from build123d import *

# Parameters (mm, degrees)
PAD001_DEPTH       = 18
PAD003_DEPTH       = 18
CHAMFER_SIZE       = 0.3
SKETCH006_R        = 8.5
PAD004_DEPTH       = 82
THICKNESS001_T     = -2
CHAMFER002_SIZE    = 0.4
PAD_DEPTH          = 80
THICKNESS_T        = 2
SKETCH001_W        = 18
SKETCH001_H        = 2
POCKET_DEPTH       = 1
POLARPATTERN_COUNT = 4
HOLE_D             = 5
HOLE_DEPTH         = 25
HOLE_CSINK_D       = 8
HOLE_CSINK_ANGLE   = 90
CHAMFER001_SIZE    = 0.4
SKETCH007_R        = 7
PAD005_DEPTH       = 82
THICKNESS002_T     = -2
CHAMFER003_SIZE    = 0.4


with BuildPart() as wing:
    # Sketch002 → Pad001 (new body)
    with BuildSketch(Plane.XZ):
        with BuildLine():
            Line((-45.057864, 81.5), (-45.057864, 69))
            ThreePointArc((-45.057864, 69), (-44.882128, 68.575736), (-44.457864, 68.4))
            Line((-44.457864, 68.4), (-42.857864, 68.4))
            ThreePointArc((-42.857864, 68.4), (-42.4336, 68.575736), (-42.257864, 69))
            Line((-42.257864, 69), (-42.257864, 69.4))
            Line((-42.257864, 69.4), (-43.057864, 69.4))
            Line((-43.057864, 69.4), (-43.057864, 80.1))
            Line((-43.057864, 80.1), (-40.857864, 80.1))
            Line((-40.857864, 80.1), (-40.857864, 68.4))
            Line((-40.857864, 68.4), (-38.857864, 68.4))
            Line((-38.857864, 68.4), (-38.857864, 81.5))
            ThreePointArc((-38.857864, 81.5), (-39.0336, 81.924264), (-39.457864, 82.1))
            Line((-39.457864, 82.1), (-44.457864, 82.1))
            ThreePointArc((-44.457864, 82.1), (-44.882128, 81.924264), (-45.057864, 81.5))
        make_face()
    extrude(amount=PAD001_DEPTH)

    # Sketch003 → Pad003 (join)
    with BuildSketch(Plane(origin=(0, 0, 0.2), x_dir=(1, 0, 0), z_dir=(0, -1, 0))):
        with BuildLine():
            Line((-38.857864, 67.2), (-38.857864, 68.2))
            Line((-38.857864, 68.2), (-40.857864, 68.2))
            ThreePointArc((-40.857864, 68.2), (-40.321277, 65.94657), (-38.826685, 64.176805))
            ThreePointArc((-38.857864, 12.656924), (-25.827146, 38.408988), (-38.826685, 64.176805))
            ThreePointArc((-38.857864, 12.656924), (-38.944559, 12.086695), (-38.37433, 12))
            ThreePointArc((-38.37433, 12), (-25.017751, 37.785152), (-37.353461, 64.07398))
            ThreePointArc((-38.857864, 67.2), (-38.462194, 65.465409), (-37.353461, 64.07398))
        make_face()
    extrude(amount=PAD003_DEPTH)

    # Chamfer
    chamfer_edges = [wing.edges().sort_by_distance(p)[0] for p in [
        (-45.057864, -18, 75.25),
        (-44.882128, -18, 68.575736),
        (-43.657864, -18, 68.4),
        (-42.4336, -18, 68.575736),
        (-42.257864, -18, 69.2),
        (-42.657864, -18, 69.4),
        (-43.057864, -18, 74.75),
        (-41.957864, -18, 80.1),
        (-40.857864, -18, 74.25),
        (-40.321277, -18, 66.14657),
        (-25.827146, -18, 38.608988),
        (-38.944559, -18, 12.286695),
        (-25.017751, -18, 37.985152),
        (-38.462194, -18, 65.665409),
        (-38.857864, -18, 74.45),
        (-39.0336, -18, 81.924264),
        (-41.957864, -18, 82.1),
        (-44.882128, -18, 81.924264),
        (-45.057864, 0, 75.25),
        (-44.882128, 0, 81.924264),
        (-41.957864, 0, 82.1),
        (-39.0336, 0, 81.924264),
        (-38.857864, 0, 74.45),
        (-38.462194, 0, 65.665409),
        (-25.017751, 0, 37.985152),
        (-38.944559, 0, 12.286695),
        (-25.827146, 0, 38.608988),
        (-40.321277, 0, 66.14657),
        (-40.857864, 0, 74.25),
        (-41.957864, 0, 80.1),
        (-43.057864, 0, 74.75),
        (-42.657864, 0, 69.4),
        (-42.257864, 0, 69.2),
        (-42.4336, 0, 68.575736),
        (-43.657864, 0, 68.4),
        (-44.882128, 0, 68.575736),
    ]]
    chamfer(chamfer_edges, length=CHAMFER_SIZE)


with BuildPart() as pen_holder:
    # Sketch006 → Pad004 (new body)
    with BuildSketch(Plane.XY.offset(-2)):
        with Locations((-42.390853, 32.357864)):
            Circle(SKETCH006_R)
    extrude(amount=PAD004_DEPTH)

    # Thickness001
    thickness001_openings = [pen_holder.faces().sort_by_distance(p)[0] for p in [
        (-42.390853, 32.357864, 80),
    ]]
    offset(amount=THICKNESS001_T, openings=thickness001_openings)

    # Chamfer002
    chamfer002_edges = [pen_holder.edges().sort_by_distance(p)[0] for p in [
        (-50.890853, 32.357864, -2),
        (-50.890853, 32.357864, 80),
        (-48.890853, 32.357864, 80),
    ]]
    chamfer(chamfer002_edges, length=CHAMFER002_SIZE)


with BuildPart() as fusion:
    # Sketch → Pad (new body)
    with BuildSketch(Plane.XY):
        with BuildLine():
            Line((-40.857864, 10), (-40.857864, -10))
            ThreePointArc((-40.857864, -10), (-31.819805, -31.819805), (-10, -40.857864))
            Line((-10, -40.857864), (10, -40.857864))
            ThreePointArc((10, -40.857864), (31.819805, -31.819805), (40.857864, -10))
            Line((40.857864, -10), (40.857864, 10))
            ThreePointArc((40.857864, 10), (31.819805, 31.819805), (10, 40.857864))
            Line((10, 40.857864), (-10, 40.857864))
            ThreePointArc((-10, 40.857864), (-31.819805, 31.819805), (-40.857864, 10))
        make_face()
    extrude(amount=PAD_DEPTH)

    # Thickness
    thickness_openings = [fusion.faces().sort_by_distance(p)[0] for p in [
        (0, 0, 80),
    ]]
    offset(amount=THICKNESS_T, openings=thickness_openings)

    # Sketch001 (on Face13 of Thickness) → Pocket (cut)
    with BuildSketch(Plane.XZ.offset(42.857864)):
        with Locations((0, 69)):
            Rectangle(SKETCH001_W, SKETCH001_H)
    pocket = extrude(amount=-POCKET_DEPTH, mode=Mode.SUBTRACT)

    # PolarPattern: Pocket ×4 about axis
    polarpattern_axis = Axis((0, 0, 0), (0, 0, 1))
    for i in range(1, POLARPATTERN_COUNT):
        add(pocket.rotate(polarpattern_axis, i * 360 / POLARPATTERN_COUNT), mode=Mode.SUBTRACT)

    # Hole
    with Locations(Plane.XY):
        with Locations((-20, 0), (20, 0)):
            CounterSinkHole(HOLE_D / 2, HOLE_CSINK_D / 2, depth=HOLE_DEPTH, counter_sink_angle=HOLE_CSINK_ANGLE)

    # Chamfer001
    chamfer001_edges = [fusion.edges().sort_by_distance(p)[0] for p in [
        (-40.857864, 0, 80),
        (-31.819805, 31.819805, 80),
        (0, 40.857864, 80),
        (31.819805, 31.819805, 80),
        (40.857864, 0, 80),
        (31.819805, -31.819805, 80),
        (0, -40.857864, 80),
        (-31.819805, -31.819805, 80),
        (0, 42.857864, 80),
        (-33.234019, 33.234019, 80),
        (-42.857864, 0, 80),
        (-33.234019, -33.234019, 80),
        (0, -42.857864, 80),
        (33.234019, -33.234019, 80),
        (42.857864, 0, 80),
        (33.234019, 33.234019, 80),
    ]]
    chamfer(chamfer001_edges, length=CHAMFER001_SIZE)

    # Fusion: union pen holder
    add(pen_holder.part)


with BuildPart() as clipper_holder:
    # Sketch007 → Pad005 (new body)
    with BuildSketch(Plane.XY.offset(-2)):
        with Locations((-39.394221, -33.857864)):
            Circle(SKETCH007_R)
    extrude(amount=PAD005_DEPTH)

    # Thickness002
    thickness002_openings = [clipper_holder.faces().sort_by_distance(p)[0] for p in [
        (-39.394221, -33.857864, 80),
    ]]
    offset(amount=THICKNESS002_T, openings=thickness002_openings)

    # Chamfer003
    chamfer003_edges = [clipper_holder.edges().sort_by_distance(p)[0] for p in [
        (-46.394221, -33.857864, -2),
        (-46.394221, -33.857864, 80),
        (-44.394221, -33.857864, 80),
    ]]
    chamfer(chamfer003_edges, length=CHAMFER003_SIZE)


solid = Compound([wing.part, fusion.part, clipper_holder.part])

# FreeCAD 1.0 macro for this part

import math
import FreeCAD as App
import Part
import Sketcher

V = App.Vector


def edges_at(feature, points):
    """Names of the edges that pass closest to the given points."""
    edges = feature.Shape.Edges
    near = lambda p: min(range(len(edges)), key=lambda i: edges[i].distToShape(Part.Vertex(*p))[0])
    return sorted({f"Edge{near(p) + 1}" for p in points})


def faces_at(feature, points):
    """Names of the faces that lie closest to the given points."""
    faces = feature.Shape.Faces
    near = lambda p: min(range(len(faces)), key=lambda i: faces[i].distToShape(Part.Vertex(*p))[0])
    return sorted({f"Face{near(p) + 1}" for p in points})


def add_polygon(sketch, points):
    """Adds a closed chain of lines whose ends are joined by coincident constraints."""
    first, n = sketch.GeometryCount, len(points)
    for a, b in zip(points, points[1:] + points[:1]):
        sketch.addGeometry(Part.LineSegment(App.Vector(*a, 0), App.Vector(*b, 0)), False)
    for i in range(n):
        sketch.addConstraint(Sketcher.Constraint("Coincident", first + i, 2, first + (i + 1) % n, 1))

doc = App.newDocument("Part")
body = doc.addObject("PartDesign::Body", "Body")

# Sketch on XZ plane
sketch1 = doc.addObject("Sketcher::SketchObject", "Sketch")
body.addObject(sketch1)
sketch1.AttachmentSupport = (doc.XZ_Plane, [""])
sketch1.MapMode = "FlatFace"
sketch1.addGeometry([
    Part.LineSegment(V(-45.06, 81.5, 0), V(-45.06, 69, 0)),  # 0
    Part.ArcOfCircle(Part.Circle(V(-44.46, 69, 0), V(0, 0, 1), 0.6), math.radians(-180), math.radians(-90)),  # 1
    Part.LineSegment(V(-44.46, 68.4, 0), V(-42.86, 68.4, 0)),  # 2
    Part.ArcOfCircle(Part.Circle(V(-42.86, 69, 0), V(0, 0, 1), 0.6), math.radians(-90), math.radians(0)),  # 3
    Part.LineSegment(V(-42.26, 69, 0), V(-42.26, 69.4, 0)),  # 4
    Part.LineSegment(V(-42.26, 69.4, 0), V(-43.06, 69.4, 0)),  # 5
    Part.LineSegment(V(-43.06, 69.4, 0), V(-43.06, 80.1, 0)),  # 6
    Part.LineSegment(V(-43.06, 80.1, 0), V(-40.86, 80.1, 0)),  # 7
    Part.LineSegment(V(-40.86, 80.1, 0), V(-40.86, 68.4, 0)),  # 8
    Part.LineSegment(V(-40.86, 68.4, 0), V(-38.86, 68.4, 0)),  # 9
    Part.LineSegment(V(-38.86, 68.4, 0), V(-38.86, 81.5, 0)),  # 10
    Part.ArcOfCircle(Part.Circle(V(-39.46, 81.5, 0), V(0, 0, 1), 0.6), math.radians(0), math.radians(90)),  # 11
    Part.LineSegment(V(-39.46, 82.1, 0), V(-44.46, 82.1, 0)),  # 12
    Part.ArcOfCircle(Part.Circle(V(-44.46, 81.5, 0), V(0, 0, 1), 0.6), math.radians(90), math.radians(180)),  # 13
], False)
sketch1.addConstraint([
    Sketcher.Constraint("Tangent", 0, 2, 1, 1),
    Sketcher.Constraint("Tangent", 1, 2, 2, 1),
    Sketcher.Constraint("Tangent", 2, 2, 3, 1),
    Sketcher.Constraint("Tangent", 3, 2, 4, 1),
    Sketcher.Constraint("Coincident", 4, 2, 5, 1),
    Sketcher.Constraint("Coincident", 5, 2, 6, 1),
    Sketcher.Constraint("Coincident", 6, 2, 7, 1),
    Sketcher.Constraint("Coincident", 7, 2, 8, 1),
    Sketcher.Constraint("Coincident", 8, 2, 9, 1),
    Sketcher.Constraint("Coincident", 9, 2, 10, 1),
    Sketcher.Constraint("Tangent", 10, 2, 11, 1),
    Sketcher.Constraint("Tangent", 11, 2, 12, 1),
    Sketcher.Constraint("Tangent", 12, 2, 13, 1),
    Sketcher.Constraint("Tangent", 13, 2, 0, 1),
    Sketcher.Constraint("Vertical", 0),
    Sketcher.Constraint("Horizontal", 2),
    Sketcher.Constraint("Vertical", 4),
    Sketcher.Constraint("Horizontal", 5),
    Sketcher.Constraint("Vertical", 6),
    Sketcher.Constraint("Horizontal", 7),
    Sketcher.Constraint("Vertical", 8),
    Sketcher.Constraint("Horizontal", 9),
    Sketcher.Constraint("Vertical", 10),
    Sketcher.Constraint("Horizontal", 12),
    Sketcher.Constraint("Equal", 1, 3),
    Sketcher.Constraint("Equal", 3, 11),
    Sketcher.Constraint("Equal", 11, 13),
    Sketcher.Constraint("Horizontal", 2, 2, 8, 2),
    Sketcher.Constraint("Radius", 1, 0.6),
    Sketcher.Constraint("DistanceX", 9, 1, 9, 2, 2.0),
    Sketcher.Constraint("DistanceX", 12, 2, 12, 1, 5.0),
    Sketcher.Constraint("DistanceX", 2, 1, 2, 2, 1.6),
    Sketcher.Constraint("DistanceX", 5, 2, 5, 1, 0.8),
    Sketcher.Constraint("DistanceY", 0, 2, 0, 1, 12.5),
    Sketcher.Constraint("DistanceY", 4, 1, 4, 2, 0.4),
    Sketcher.Constraint("DistanceY", 6, 1, 6, 2, 10.7),
    Sketcher.Constraint("DistanceY", -1, 1, 1, 3, 69.0),
    Sketcher.Constraint("DistanceX", 1, 3, -1, 1, 44.457864),
])
pad1 = doc.addObject("PartDesign::Pad", "Pad")
body.addObject(pad1)
pad1.Profile = sketch1
pad1.Length = 18

# Sketch on XZ plane
sketch2 = doc.addObject("Sketcher::SketchObject", "Sketch001")
body.addObject(sketch2)
sketch2.AttachmentSupport = (doc.XZ_Plane, [""])
sketch2.MapMode = "FlatFace"
sketch2.addGeometry([
    Part.LineSegment(V(-38.86, 67.4, 0), V(-38.86, 68.4, 0)),  # 0
    Part.LineSegment(V(-38.86, 68.4, 0), V(-40.86, 68.4, 0)),  # 1
    Part.ArcOfCircle(Part.Circle(V(-35.86, 68.4, 0), V(0, 0, 1), 5), math.radians(180), math.radians(234)),  # 2
    Part.ArcOfCircle(Part.Circle(V(-57.83, 38.63, 0), V(0, 0, 1), 32), math.radians(-54), math.radians(54)),  # 3
    Part.ArcOfCircle(Part.Circle(V(-38.62, 12.53, 0), V(0, 0, 1), 0.41), math.radians(126), math.radians(306)),  # 4
    Part.ArcOfCircle(Part.Circle(V(-57.83, 38.63, 0), V(0, 0, 1), 32.82), math.radians(-54), math.radians(51)),  # 5
    Part.ArcOfCircle(Part.Circle(V(-34.86, 67.4, 0), V(0, 0, 1), 4), math.radians(-180), math.radians(-129)),  # 6
], False)
sketch2.addConstraint([
    Sketcher.Constraint("Coincident", 0, 2, 1, 1),
    Sketcher.Constraint("Coincident", 1, 2, 2, 1),
    Sketcher.Constraint("Tangent", 2, 2, 3, 2),
    Sketcher.Constraint("Tangent", 3, 1, 4, 1),
    Sketcher.Constraint("Tangent", 4, 2, 5, 1),
    Sketcher.Constraint("Tangent", 5, 2, 6, 2),
    Sketcher.Constraint("Tangent", 6, 1, 0, 1),
    Sketcher.Constraint("Vertical", 0),
    Sketcher.Constraint("Horizontal", 1),
    Sketcher.Constraint("Coincident", 5, 3, 3, 3),
    Sketcher.Constraint("Horizontal", 2, 3, 0, 2),
    Sketcher.Constraint("Vertical", 0, 2, 3, 1),
    Sketcher.Constraint("Radius", 3, 32.000001),
    Sketcher.Constraint("DistanceX", 1, 2, 1, 1, 2.0),
    Sketcher.Constraint("DistanceY", 0, 1, 0, 2, 1.0),
    Sketcher.Constraint("DistanceY", -1, 1, 2, 3, 68.399999),
    Sketcher.Constraint("DistanceY", -1, 1, 4, 2, 12.2),
    Sketcher.Constraint("Radius", 2, 4.999996),
    Sketcher.Constraint("Radius", 4, 0.407846),
    Sketcher.Constraint("DistanceX", 3, 3, -1, 1, 57.827141),
])
pad2 = doc.addObject("PartDesign::Pad", "Pad001")
body.addObject(pad2)
pad2.Profile = sketch2
pad2.Length = 18
doc.recompute()

chamfer = doc.addObject("PartDesign::Chamfer", "Chamfer")
body.addObject(chamfer)
chamfer.Base = (pad2, edges_at(pad2, [
    (-45.058, -18, 75.25),
    (-44.882, -18, 68.576),
    (-43.658, -18, 68.4),
    (-42.434, -18, 68.576),
    (-42.258, -18, 69.2),
    (-42.658, -18, 69.4),
    (-43.058, -18, 74.75),
    (-41.958, -18, 80.1),
    (-40.858, -18, 74.25),
    (-40.321, -18, 66.147),
    (-25.827, -18, 38.609),
    (-38.945, -18, 12.287),
    (-25.018, -18, 37.985),
    (-38.462, -18, 65.665),
    (-38.858, -18, 74.45),
    (-39.034, -18, 81.924),
    (-41.958, -18, 82.1),
    (-44.882, -18, 81.924),
    (-45.058, 0, 75.25),
    (-44.882, 0, 81.924),
    (-41.958, 0, 82.1),
    (-39.034, 0, 81.924),
    (-38.858, 0, 74.45),
    (-38.462, 0, 65.665),
    (-25.018, 0, 37.985),
    (-38.945, 0, 12.287),
    (-25.827, 0, 38.609),
    (-40.321, 0, 66.147),
    (-40.858, 0, 74.25),
    (-41.958, 0, 80.1),
    (-43.058, 0, 74.75),
    (-42.658, 0, 69.4),
    (-42.258, 0, 69.2),
    (-42.434, 0, 68.576),
    (-43.658, 0, 68.4),
    (-44.882, 0, 68.576),
]))
chamfer.Size = 0.3
body2 = doc.addObject("PartDesign::Body", "Body001")

# Sketch on XY plane
sketch3 = doc.addObject("Sketcher::SketchObject", "Sketch002")
body2.addObject(sketch3)
sketch3.AttachmentSupport = (doc.getObject("XY_Plane001"), [""])
sketch3.MapMode = "FlatFace"
sketch3.AttachmentOffset = App.Placement(V(0, 0, -2), App.Rotation())
sketch3.addGeometry(Part.Circle(V(-42, 32, 0), V(0, 0, 1), 8), False)
sketch3.addConstraint([
    Sketcher.Constraint("Diameter", 0, 17.0),
    Sketcher.Constraint("DistanceX", 0, 3, -1, 1, 42.390853),
    Sketcher.Constraint("DistanceY", -1, 1, 0, 3, 32.357864),
])
pad3 = doc.addObject("PartDesign::Pad", "Pad002")
body2.addObject(pad3)
pad3.Profile = sketch3
pad3.Length = 82
doc.recompute()

thickness = doc.addObject("PartDesign::Thickness", "Thickness")
body2.addObject(thickness)
thickness.Base = (pad3, faces_at(pad3, [(-42.391, 32.358, 80)]))
thickness.Value = 2
thickness.Reversed = True
thickness.Join = "Arc"
doc.recompute()

chamfer2 = doc.addObject("PartDesign::Chamfer", "Chamfer001")
body2.addObject(chamfer2)
chamfer2.Base = (thickness, edges_at(thickness, [(-50.891, 32.358, -2), (-50.891, 32.358, 80), (-48.891, 32.358, 80)]))
chamfer2.Size = 0.4
body3 = doc.addObject("PartDesign::Body", "Body002")

# Sketch on XY plane
sketch4 = doc.addObject("Sketcher::SketchObject", "Sketch003")
body3.addObject(sketch4)
sketch4.AttachmentSupport = (doc.getObject("XY_Plane002"), [""])
sketch4.MapMode = "FlatFace"
sketch4.addGeometry([
    Part.LineSegment(V(-41, 10, 0), V(-41, -10, 0)),  # 0
    Part.ArcOfCircle(Part.Circle(V(-10, -10, 0), V(0, 0, 1), 31), math.radians(180), math.radians(270)),  # 1
    Part.LineSegment(V(-10, -41, 0), V(10, -41, 0)),  # 2
    Part.ArcOfCircle(Part.Circle(V(10, -10, 0), V(0, 0, 1), 31), math.radians(-90), math.radians(0)),  # 3
    Part.LineSegment(V(41, -10, 0), V(41, 10, 0)),  # 4
    Part.ArcOfCircle(Part.Circle(V(10, 10, 0), V(0, 0, 1), 31), math.radians(0), math.radians(90)),  # 5
    Part.LineSegment(V(10, 41, 0), V(-10, 41, 0)),  # 6
    Part.ArcOfCircle(Part.Circle(V(-10, 10, 0), V(0, 0, 1), 31), math.radians(90), math.radians(180)),  # 7
], False)
sketch4.addConstraint([
    Sketcher.Constraint("Tangent", 0, 2, 1, 1),
    Sketcher.Constraint("Tangent", 1, 2, 2, 1),
    Sketcher.Constraint("Tangent", 2, 2, 3, 1),
    Sketcher.Constraint("Tangent", 3, 2, 4, 1),
    Sketcher.Constraint("Tangent", 4, 2, 5, 1),
    Sketcher.Constraint("Tangent", 5, 2, 6, 1),
    Sketcher.Constraint("Tangent", 6, 2, 7, 1),
    Sketcher.Constraint("Tangent", 7, 2, 0, 1),
    Sketcher.Constraint("Vertical", 0),
    Sketcher.Constraint("Horizontal", 2),
    Sketcher.Constraint("Vertical", 4),
    Sketcher.Constraint("Horizontal", 6),
    Sketcher.Constraint("Equal", 1, 3),
    Sketcher.Constraint("Equal", 3, 5),
    Sketcher.Constraint("Equal", 5, 7),
    Sketcher.Constraint("Symmetric", 1, 3, 5, 3, -1, 1),
    Sketcher.Constraint("Equal", 6, 0),
    Sketcher.Constraint("DistanceX", 2, 1, 2, 2, 20.0),
    Sketcher.Constraint("Radius", 1, 30.857864),
])
pad4 = doc.addObject("PartDesign::Pad", "Pad003")
body3.addObject(pad4)
pad4.Profile = sketch4
pad4.Length = 80
doc.recompute()

thickness2 = doc.addObject("PartDesign::Thickness", "Thickness001")
body3.addObject(thickness2)
thickness2.Base = (pad4, faces_at(pad4, [(0, 0, 80)]))
thickness2.Value = 2
thickness2.Reversed = False
thickness2.Join = "Arc"

# Sketch on XZ plane
sketch5 = doc.addObject("Sketcher::SketchObject", "Sketch004")
body3.addObject(sketch5)
sketch5.AttachmentSupport = (doc.getObject("XZ_Plane002"), [""])
sketch5.MapMode = "FlatFace"
sketch5.AttachmentOffset = App.Placement(V(0, 0, 42.857864), App.Rotation())
add_polygon(sketch5, [(-9, 70), (-9, 68), (9, 68), (9, 70)])  # lines 0-3
sketch5.addConstraint([
    Sketcher.Constraint("Vertical", 0),
    Sketcher.Constraint("Horizontal", 1),
    Sketcher.Constraint("Vertical", 2),
    Sketcher.Constraint("Horizontal", 3),
    Sketcher.Constraint("DistanceX", 1, 1, 1, 2, 18.0),
    Sketcher.Constraint("DistanceY", 0, 2, 0, 1, 2.0),
    Sketcher.Constraint("DistanceX", 0, 2, -1, 1, 9.0),
    Sketcher.Constraint("DistanceY", -1, 1, 0, 2, 68.0),
])
pocket1 = doc.addObject("PartDesign::Pocket", "Pocket")
body3.addObject(pocket1)
pocket1.Profile = sketch5
pocket1.Length = 1
doc.recompute()

polarpattern = doc.addObject("PartDesign::PolarPattern", "PolarPattern")
body3.addObject(polarpattern)
polarpattern.Originals = [pocket1]
polarpattern.Axis = (doc.getObject("Z_Axis002"), [""])
polarpattern.Angle = 360
polarpattern.Occurrences = 4
body3.Tip = polarpattern

# Sketch on XY plane
sketch6 = doc.addObject("Sketcher::SketchObject", "Sketch005")
body3.addObject(sketch6)
sketch6.AttachmentSupport = (doc.getObject("XY_Plane002"), [""])
sketch6.MapMode = "FlatFace"
sketch6.addGeometry([
    Part.Circle(V(-20, 0, 0), V(0, 0, 1), 2.5),
    Part.Circle(V(20, 0, 0), V(0, 0, 1), 2.5),
], False)
sketch6.addConstraint([
    Sketcher.Constraint("Equal", 0, 1),
    Sketcher.Constraint("Symmetric", 0, 3, 1, 3, -1, 1),
    Sketcher.Constraint("PointOnObject", 0, 3, -1),
    Sketcher.Constraint("Diameter", 0, 5.0),
    Sketcher.Constraint("DistanceX", 0, 3, -1, 1, 20.0),
])
doc.recompute()
hole = doc.addObject("PartDesign::Hole", "Hole")
body3.addObject(hole)
hole.Profile = sketch6
hole.ThreadType = "None"
hole.Diameter = 5
hole.DepthType = "Dimension"
hole.Depth = 25
hole.DrillPoint = "Flat"
hole.HoleCutType = "Countersink"
hole.HoleCutDiameter = 8
hole.HoleCutCountersinkAngle = 90
doc.recompute()

chamfer3 = doc.addObject("PartDesign::Chamfer", "Chamfer002")
body3.addObject(chamfer3)
chamfer3.Base = (hole, edges_at(hole, [
    (-40.858, 0, 80),
    (-31.82, 31.82, 80),
    (0, 40.858, 80),
    (31.82, 31.82, 80),
    (40.858, 0, 80),
    (31.82, -31.82, 80),
    (0, -40.858, 80),
    (-31.82, -31.82, 80),
    (0, 42.858, 80),
    (-33.234, 33.234, 80),
    (-42.858, 0, 80),
    (-33.234, -33.234, 80),
    (0, -42.858, 80),
    (33.234, -33.234, 80),
    (42.858, 0, 80),
    (33.234, 33.234, 80),
]))
chamfer3.Size = 0.4
doc.recompute()

boolean = doc.addObject("PartDesign::Boolean", "Boolean")
body3.addObject(boolean)
boolean.Type = "Fuse"
boolean.addObjects([body2])
body4 = doc.addObject("PartDesign::Body", "Body003")

# Sketch on XY plane
sketch7 = doc.addObject("Sketcher::SketchObject", "Sketch006")
body4.addObject(sketch7)
sketch7.AttachmentSupport = (doc.getObject("XY_Plane003"), [""])
sketch7.MapMode = "FlatFace"
sketch7.AttachmentOffset = App.Placement(V(0, 0, -2), App.Rotation())
sketch7.addGeometry(Part.Circle(V(-39, -34, 0), V(0, 0, 1), 7), False)
sketch7.addConstraint([
    Sketcher.Constraint("Diameter", 0, 14.0),
    Sketcher.Constraint("DistanceX", 0, 3, -1, 1, 39.394221),
    Sketcher.Constraint("DistanceY", 0, 3, -1, 1, 33.857864),
])
pad5 = doc.addObject("PartDesign::Pad", "Pad004")
body4.addObject(pad5)
pad5.Profile = sketch7
pad5.Length = 82
doc.recompute()

thickness3 = doc.addObject("PartDesign::Thickness", "Thickness002")
body4.addObject(thickness3)
thickness3.Base = (pad5, faces_at(pad5, [(-39.394, -33.858, 80)]))
thickness3.Value = 2
thickness3.Reversed = True
thickness3.Join = "Arc"
doc.recompute()

chamfer4 = doc.addObject("PartDesign::Chamfer", "Chamfer003")
body4.addObject(chamfer4)
chamfer4.Base = (thickness3, edges_at(thickness3, [(-46.394, -33.858, -2), (-46.394, -33.858, 80), (-44.394, -33.858, 80)]))
chamfer4.Size = 0.4

doc.recompute()
